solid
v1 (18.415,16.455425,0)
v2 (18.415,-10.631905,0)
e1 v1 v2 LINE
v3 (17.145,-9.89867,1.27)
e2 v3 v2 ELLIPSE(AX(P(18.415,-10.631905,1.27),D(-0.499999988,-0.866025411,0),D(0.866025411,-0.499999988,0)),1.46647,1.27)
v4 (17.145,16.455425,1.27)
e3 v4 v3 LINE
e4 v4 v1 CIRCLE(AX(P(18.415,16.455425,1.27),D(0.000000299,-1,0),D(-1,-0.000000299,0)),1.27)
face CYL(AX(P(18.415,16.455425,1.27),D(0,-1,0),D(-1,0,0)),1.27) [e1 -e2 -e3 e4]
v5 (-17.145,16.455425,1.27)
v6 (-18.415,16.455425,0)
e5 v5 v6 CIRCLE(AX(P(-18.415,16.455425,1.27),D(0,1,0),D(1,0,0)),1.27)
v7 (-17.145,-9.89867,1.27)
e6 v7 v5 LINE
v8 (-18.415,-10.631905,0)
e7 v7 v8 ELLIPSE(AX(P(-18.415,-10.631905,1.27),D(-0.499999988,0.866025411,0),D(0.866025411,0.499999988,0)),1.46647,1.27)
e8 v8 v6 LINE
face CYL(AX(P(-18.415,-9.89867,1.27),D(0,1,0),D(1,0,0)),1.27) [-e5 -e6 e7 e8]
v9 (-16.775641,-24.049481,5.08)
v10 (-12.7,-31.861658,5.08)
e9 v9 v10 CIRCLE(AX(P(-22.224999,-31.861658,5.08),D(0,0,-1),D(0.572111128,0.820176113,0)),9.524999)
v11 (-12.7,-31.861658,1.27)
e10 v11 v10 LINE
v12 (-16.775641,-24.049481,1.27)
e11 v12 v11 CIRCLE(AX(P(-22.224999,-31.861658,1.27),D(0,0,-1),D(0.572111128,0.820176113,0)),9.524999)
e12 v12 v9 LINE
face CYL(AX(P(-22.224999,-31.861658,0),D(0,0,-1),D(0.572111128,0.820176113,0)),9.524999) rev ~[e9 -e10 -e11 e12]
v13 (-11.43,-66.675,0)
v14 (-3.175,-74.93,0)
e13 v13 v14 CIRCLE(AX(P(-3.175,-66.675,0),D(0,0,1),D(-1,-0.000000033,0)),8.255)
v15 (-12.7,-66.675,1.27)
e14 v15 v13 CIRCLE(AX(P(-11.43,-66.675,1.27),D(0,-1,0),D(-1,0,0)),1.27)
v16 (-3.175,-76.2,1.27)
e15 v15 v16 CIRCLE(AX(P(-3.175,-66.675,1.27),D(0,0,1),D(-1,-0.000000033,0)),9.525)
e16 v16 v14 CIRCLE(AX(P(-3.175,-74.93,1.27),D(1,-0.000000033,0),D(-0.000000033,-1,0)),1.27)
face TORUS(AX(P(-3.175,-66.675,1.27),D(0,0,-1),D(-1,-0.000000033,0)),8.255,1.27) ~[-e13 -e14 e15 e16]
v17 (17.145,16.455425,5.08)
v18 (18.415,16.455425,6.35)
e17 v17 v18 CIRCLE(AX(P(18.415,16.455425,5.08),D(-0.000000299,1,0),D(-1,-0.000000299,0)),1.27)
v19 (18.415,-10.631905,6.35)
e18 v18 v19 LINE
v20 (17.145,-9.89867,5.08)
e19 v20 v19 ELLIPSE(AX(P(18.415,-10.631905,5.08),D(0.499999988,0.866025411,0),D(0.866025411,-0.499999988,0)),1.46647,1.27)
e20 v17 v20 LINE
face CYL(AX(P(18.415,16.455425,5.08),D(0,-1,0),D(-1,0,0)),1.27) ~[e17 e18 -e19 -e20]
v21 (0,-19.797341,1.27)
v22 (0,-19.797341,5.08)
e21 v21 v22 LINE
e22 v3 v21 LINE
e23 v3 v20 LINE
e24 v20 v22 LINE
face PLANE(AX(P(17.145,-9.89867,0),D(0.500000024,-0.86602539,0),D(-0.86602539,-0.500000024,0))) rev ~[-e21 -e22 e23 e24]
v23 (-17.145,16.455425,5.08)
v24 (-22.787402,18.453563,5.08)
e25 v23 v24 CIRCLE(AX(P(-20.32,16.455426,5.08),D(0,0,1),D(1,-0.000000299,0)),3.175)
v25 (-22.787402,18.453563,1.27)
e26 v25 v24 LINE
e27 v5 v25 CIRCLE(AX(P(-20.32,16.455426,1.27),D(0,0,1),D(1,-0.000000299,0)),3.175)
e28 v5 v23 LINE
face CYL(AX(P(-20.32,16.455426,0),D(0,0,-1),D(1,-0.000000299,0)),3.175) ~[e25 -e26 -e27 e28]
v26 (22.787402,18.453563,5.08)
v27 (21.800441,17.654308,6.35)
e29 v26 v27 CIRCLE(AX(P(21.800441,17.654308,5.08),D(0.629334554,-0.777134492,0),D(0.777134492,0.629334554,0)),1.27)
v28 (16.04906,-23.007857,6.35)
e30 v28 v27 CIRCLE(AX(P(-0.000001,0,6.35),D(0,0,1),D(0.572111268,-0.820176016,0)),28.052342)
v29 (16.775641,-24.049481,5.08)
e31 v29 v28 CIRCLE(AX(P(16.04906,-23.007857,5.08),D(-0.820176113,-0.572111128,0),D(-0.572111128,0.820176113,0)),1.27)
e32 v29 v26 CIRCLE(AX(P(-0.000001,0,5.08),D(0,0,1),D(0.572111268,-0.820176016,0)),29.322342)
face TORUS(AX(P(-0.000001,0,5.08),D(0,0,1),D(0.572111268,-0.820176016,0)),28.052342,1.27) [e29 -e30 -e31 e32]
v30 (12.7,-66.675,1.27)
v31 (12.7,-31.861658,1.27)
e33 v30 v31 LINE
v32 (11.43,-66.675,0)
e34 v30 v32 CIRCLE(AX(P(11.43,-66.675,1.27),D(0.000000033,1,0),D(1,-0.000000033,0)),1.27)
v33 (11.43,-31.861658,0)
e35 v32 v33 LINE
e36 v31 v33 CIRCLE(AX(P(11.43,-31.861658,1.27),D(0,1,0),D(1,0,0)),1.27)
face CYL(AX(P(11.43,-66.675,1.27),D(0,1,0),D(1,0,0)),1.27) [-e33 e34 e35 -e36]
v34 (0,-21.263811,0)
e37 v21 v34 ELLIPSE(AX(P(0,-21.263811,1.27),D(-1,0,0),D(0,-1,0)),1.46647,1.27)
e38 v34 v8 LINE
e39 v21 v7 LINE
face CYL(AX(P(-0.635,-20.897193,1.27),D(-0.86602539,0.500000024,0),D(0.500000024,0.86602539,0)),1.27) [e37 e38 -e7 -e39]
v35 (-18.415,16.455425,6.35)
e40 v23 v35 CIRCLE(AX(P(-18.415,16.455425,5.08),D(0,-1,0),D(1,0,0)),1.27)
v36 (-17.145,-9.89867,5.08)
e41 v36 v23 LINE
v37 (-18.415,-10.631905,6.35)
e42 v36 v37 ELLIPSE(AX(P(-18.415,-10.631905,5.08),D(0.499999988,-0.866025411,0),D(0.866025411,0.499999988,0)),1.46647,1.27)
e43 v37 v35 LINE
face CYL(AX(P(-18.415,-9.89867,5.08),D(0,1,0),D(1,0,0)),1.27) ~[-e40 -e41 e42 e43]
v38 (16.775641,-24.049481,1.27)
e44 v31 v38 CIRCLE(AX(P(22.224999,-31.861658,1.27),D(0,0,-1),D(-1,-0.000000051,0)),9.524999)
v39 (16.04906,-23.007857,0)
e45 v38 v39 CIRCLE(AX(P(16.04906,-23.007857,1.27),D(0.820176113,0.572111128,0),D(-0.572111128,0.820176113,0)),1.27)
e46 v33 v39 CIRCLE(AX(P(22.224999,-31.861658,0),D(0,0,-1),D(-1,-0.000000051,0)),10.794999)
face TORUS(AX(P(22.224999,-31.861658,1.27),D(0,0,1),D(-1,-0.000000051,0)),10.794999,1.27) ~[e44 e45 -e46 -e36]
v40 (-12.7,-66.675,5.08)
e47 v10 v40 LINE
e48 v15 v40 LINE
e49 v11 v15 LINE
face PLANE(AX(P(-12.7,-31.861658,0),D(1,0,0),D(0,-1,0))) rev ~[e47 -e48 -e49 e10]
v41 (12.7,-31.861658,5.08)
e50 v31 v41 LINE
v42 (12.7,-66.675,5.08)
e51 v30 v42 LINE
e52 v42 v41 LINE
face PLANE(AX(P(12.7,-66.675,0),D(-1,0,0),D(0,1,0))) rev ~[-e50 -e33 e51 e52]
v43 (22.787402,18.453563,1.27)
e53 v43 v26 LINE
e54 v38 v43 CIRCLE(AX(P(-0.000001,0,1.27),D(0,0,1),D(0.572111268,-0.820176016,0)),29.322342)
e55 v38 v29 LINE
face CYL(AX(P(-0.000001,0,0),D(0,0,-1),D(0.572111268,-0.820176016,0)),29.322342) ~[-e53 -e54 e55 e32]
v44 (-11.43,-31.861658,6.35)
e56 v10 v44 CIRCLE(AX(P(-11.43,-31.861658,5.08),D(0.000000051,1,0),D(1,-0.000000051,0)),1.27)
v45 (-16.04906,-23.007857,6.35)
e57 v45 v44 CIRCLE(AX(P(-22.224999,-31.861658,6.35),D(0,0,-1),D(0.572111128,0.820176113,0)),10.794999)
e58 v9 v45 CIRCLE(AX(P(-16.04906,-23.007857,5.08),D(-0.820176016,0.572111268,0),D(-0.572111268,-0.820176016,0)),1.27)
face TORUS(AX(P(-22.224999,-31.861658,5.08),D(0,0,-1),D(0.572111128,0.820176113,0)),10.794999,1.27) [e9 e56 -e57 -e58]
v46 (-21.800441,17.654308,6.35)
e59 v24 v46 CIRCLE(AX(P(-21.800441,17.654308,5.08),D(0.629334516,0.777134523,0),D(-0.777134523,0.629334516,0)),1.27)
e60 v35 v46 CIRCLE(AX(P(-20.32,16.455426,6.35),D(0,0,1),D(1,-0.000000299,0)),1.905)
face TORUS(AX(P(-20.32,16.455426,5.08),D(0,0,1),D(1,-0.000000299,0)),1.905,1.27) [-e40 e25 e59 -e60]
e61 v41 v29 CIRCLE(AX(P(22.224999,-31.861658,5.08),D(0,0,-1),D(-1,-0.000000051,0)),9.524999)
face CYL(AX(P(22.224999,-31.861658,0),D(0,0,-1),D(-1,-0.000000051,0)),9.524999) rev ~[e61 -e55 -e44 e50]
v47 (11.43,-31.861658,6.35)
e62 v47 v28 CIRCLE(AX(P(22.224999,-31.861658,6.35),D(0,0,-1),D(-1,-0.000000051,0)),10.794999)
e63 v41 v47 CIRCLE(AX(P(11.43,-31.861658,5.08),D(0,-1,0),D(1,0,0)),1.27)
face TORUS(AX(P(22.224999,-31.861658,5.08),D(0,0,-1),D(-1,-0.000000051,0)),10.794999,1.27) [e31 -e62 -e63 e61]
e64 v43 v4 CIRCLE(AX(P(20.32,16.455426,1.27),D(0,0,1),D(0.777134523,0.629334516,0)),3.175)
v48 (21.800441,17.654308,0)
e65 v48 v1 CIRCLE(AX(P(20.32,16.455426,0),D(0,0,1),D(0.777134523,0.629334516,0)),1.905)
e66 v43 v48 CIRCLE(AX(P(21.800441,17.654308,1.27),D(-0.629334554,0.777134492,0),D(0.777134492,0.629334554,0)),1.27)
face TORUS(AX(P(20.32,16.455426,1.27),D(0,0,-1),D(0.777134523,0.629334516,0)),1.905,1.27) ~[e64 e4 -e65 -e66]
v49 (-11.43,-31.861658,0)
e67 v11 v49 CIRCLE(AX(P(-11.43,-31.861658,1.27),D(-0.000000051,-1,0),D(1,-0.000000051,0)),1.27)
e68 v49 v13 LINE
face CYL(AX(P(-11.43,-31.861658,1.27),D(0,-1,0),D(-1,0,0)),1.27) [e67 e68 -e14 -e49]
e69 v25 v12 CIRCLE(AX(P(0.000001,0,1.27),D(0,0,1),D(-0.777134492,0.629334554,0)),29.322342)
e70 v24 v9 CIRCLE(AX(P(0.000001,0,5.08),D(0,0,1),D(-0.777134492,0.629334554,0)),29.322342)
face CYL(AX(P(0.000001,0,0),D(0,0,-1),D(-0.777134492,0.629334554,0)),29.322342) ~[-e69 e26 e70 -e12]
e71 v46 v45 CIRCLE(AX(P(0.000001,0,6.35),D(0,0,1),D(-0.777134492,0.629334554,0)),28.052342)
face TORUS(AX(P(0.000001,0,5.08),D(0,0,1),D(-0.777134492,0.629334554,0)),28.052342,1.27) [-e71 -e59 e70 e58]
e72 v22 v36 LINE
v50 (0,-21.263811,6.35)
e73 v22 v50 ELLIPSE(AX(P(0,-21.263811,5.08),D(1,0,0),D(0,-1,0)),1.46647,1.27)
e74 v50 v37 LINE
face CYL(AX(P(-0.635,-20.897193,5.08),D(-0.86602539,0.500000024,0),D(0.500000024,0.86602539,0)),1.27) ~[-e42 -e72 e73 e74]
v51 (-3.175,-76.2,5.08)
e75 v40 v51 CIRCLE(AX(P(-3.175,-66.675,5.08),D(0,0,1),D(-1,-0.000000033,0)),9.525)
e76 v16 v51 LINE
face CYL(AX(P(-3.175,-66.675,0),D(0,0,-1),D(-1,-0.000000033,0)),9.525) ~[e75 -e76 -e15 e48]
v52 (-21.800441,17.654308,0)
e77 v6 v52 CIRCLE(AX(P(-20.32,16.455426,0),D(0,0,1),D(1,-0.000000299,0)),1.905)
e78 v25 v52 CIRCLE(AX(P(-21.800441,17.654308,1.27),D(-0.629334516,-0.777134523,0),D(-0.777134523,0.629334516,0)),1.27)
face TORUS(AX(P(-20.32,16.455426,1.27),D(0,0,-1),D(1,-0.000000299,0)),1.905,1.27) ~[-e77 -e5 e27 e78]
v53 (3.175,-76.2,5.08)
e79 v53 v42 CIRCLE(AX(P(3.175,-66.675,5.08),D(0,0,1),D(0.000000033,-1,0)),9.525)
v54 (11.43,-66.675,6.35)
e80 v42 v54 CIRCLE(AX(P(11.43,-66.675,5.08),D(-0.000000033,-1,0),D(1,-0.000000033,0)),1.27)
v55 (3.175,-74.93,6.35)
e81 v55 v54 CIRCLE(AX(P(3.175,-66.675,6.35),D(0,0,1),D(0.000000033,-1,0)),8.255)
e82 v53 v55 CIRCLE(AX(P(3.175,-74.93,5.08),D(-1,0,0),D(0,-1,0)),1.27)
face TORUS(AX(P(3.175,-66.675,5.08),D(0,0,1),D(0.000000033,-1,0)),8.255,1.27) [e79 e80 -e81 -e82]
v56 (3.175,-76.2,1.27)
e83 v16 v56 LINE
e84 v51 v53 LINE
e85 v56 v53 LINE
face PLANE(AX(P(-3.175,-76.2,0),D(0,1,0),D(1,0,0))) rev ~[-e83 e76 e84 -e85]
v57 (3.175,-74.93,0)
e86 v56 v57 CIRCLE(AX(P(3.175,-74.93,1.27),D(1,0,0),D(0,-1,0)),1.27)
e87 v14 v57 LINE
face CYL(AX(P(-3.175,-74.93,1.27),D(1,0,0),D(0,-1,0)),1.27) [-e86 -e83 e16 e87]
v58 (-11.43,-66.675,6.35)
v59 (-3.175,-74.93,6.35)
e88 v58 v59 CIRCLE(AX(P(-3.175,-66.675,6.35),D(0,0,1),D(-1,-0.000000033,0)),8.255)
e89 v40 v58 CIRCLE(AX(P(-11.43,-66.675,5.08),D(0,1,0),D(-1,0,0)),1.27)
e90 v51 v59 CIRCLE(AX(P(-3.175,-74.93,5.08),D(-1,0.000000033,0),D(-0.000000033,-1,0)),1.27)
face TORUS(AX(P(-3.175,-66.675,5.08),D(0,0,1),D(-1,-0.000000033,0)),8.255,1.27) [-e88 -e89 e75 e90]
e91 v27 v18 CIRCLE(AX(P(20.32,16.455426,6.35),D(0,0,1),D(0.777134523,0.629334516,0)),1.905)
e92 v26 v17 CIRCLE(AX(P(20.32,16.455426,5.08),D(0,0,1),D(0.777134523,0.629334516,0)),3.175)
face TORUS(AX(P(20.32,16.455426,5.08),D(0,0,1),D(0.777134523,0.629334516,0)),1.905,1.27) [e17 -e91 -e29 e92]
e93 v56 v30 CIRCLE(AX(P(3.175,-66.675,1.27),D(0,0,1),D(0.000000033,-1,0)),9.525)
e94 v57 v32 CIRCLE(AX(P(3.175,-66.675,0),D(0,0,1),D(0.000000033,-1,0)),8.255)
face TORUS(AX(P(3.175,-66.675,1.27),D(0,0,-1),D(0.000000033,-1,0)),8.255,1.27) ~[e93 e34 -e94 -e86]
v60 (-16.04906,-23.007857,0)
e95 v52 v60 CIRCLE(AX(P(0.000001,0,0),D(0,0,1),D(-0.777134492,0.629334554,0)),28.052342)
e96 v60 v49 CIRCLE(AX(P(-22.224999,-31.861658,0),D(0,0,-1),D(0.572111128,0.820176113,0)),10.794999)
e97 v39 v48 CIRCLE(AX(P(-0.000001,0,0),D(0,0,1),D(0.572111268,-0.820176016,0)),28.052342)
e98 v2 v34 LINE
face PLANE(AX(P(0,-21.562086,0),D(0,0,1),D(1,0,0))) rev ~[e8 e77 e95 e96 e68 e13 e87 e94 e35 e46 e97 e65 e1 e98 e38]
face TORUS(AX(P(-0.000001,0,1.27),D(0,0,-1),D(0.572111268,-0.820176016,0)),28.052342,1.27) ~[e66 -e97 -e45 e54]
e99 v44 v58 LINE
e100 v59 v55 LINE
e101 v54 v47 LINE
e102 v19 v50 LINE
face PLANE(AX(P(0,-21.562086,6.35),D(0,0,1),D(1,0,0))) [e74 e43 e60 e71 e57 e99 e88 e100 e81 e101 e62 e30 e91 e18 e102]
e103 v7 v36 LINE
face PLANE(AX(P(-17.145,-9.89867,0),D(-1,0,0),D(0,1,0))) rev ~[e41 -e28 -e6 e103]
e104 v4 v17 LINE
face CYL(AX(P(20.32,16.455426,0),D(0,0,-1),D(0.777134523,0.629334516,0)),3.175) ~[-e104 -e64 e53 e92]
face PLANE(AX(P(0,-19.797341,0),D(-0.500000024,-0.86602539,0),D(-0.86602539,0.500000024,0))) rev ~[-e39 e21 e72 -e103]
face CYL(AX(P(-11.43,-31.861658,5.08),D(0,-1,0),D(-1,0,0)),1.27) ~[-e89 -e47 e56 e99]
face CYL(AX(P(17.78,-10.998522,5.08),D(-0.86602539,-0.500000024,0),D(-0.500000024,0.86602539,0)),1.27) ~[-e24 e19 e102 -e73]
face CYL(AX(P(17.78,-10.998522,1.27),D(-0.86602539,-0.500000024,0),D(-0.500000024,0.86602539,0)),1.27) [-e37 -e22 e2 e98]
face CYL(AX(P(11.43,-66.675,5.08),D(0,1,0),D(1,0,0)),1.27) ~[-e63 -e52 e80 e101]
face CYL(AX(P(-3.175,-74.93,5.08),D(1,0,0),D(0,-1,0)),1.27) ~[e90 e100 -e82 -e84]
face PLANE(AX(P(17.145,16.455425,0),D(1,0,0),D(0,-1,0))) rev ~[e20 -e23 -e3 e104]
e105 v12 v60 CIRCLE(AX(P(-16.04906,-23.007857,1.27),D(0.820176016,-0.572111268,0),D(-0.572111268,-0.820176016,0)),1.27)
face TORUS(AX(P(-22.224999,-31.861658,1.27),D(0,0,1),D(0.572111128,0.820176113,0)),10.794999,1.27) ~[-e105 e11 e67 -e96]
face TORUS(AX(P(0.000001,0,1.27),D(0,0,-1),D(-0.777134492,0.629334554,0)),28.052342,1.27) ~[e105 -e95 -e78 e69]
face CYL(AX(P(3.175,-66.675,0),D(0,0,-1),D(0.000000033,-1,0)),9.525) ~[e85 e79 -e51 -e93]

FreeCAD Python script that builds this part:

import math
import FreeCAD as App
import Part
import Sketcher
Q = App.Units.Quantity


def edges_at(feature, points):
    """Names of the edges that pass closest to the given points."""
    edges = feature.Shape.Edges
    near = lambda p: min(range(len(edges)), key=lambda i: edges[i].distToShape(Part.Vertex(*p))[0])
    return sorted({f"Edge{near(p) + 1}" for p in points})

doc = App.newDocument("Part")
body = doc.addObject("PartDesign::Body", "Body")

# Sketch on XY plane
sketch1 = body.newObject("Sketcher::SketchObject", "Sketch")
sketch1.AttachmentSupport = (doc.getObject("XY_Plane"), [""])
sketch1.MapMode = "FlatFace"
sketch1.addGeometry([
    Part.LineSegment(App.Vector(17.1, 16.5, 0), App.Vector(17.1, -9.9, 0)),  # 0
    Part.LineSegment(App.Vector(17.1, -9.9, 0), App.Vector(0, -19.8, 0)),  # 1
    Part.LineSegment(App.Vector(0, -19.8, 0), App.Vector(-17.1, -9.9, 0)),  # 2
    Part.LineSegment(App.Vector(-17.1, -9.9, 0), App.Vector(-17.1, 16.5, 0)),  # 3
    Part.ArcOfCircle(Part.Circle(App.Vector(-20.3, 16.5, 0), App.Vector(0, 0, 1), 3.2), math.radians(0), math.radians(141)),  # 4
    Part.ArcOfCircle(Part.Circle(App.Vector(0, 0, 0), App.Vector(0, 0, 1), 29.3), math.radians(141), math.radians(235)),  # 5
    Part.ArcOfCircle(Part.Circle(App.Vector(-22.2, -31.9, 0), App.Vector(0, 0, 1), 9.5), math.radians(0), math.radians(55)),  # 6
    Part.LineSegment(App.Vector(-12.7, -31.9, 0), App.Vector(-12.7, -66.7, 0)),  # 7
    Part.ArcOfCircle(Part.Circle(App.Vector(-3.2, -66.7, 0), App.Vector(0, 0, 1), 9.5), math.radians(-180), math.radians(-90)),  # 8
    Part.LineSegment(App.Vector(-3.2, -76.2, 0), App.Vector(3.2, -76.2, 0)),  # 9
    Part.ArcOfCircle(Part.Circle(App.Vector(3.2, -66.7, 0), App.Vector(0, 0, 1), 9.5), math.radians(-90), math.radians(0)),  # 10
    Part.LineSegment(App.Vector(12.7, -66.7, 0), App.Vector(12.7, -31.9, 0)),  # 11
    Part.ArcOfCircle(Part.Circle(App.Vector(22.2, -31.9, 0), App.Vector(0, 0, 1), 9.5), math.radians(125), math.radians(180)),  # 12
    Part.ArcOfCircle(Part.Circle(App.Vector(0, 0, 0), App.Vector(0, 0, 1), 29.3), math.radians(-55), math.radians(39)),  # 13
    Part.ArcOfCircle(Part.Circle(App.Vector(20.3, 16.5, 0), App.Vector(0, 0, 1), 3.2), math.radians(39), math.radians(180)),  # 14
], False)
sketch1.addConstraint([
    Sketcher.Constraint("Coincident", 0, 2, 1, 1),
    Sketcher.Constraint("Coincident", 1, 2, 2, 1),
    Sketcher.Constraint("Coincident", 2, 2, 3, 1),
    Sketcher.Constraint("Tangent", 3, 2, 4, 1),
    Sketcher.Constraint("Tangent", 4, 2, 5, 1),
    Sketcher.Constraint("Tangent", 5, 2, 6, 2),
    Sketcher.Constraint("Tangent", 6, 1, 7, 1),
    Sketcher.Constraint("Tangent", 7, 2, 8, 1),
    Sketcher.Constraint("Tangent", 8, 2, 9, 1),
    Sketcher.Constraint("Tangent", 9, 2, 10, 1),
    Sketcher.Constraint("Tangent", 10, 2, 11, 1),
    Sketcher.Constraint("Tangent", 11, 2, 12, 2),
    Sketcher.Constraint("Tangent", 12, 1, 13, 1),
    Sketcher.Constraint("Tangent", 13, 2, 14, 1),
    Sketcher.Constraint("Tangent", 14, 2, 0, 1),
    Sketcher.Constraint("Vertical", 0),
    Sketcher.Constraint("Vertical", 3),
    Sketcher.Constraint("Vertical", 7),
    Sketcher.Constraint("Horizontal", 9),
    Sketcher.Constraint("Vertical", 11),
    Sketcher.Constraint("Coincident", 5, 3, -1, 1),
    Sketcher.Constraint("Coincident", 13, 3, -1, 1),
    Sketcher.Constraint("Equal", 6, 8),
    Sketcher.Constraint("Equal", 8, 10),
    Sketcher.Constraint("Equal", 10, 12),
    Sketcher.Constraint("Equal", 5, 13),
    Sketcher.Constraint("Equal", 4, 14),
    Sketcher.Constraint("Symmetric", 0, 2, 2, 2, -2),
    Sketcher.Constraint("PointOnObject", 1, 2, -2),
    Sketcher.Constraint("Horizontal", 6, 3, 12, 3),
    Sketcher.Constraint("DistanceY", 8, 2, -1, 1, Q("3 in")),
    Sketcher.Constraint("Angle", 1, Q("-149.999998 deg")),
    Sketcher.Constraint("Radius", 4, Q("0.125 in")),
    Sketcher.Constraint("Radius", 6, Q("0.375 in")),
    Sketcher.Constraint("DistanceX", 6, 3, 10, 3, Q("0.9999999 in")),
    Sketcher.Constraint("DistanceX", 4, 3, -1, 1, Q("0.8 in")),
    Sketcher.Constraint("Radius", 5, 29.322342),
    Sketcher.Constraint("DistanceY", 0, 2, 0, 1, 26.354095),
])
pad1 = body.newObject("PartDesign::Pad", "Pad")
pad1.Profile = sketch1
pad1.Length = Q("0.25 in")
doc.recompute()

fillet = body.newObject("PartDesign::Fillet", "Fillet")
fillet.Base = (pad1, edges_at(pad1, [
    (-13.78, -27.456, 6.35),
    (-12.7, -49.268, 6.35),
    (-9.91, -73.41, 6.35),
    (0, -76.2, 6.35),
    (9.91, -73.41, 6.35),
    (12.7, -49.268, 6.35),
    (13.78, -27.456, 6.35),
    (29.033, -4.107, 6.35),
    (19.26, 19.448, 6.35),
    (17.145, 3.278, 6.35),
    (8.572, -14.848, 6.35),
    (-8.572, -14.848, 6.35),
    (-17.145, 3.278, 6.35),
    (-19.26, 19.448, 6.35),
    (-29.033, -4.107, 6.35),
    (-13.78, -27.456, 0),
    (-12.7, -49.268, 0),
    (-9.91, -73.41, 0),
    (0, -76.2, 0),
    (9.91, -73.41, 0),
    (12.7, -49.268, 0),
    (13.78, -27.456, 0),
    (29.033, -4.107, 0),
    (19.26, 19.448, 0),
    (17.145, 3.278, 0),
    (8.572, -14.848, 0),
    (-8.572, -14.848, 0),
    (-17.145, 3.278, 0),
    (-19.26, 19.448, 0),
    (-29.033, -4.107, 0),
]))
fillet.Radius = Q("0.05 in")

doc.recompute()
